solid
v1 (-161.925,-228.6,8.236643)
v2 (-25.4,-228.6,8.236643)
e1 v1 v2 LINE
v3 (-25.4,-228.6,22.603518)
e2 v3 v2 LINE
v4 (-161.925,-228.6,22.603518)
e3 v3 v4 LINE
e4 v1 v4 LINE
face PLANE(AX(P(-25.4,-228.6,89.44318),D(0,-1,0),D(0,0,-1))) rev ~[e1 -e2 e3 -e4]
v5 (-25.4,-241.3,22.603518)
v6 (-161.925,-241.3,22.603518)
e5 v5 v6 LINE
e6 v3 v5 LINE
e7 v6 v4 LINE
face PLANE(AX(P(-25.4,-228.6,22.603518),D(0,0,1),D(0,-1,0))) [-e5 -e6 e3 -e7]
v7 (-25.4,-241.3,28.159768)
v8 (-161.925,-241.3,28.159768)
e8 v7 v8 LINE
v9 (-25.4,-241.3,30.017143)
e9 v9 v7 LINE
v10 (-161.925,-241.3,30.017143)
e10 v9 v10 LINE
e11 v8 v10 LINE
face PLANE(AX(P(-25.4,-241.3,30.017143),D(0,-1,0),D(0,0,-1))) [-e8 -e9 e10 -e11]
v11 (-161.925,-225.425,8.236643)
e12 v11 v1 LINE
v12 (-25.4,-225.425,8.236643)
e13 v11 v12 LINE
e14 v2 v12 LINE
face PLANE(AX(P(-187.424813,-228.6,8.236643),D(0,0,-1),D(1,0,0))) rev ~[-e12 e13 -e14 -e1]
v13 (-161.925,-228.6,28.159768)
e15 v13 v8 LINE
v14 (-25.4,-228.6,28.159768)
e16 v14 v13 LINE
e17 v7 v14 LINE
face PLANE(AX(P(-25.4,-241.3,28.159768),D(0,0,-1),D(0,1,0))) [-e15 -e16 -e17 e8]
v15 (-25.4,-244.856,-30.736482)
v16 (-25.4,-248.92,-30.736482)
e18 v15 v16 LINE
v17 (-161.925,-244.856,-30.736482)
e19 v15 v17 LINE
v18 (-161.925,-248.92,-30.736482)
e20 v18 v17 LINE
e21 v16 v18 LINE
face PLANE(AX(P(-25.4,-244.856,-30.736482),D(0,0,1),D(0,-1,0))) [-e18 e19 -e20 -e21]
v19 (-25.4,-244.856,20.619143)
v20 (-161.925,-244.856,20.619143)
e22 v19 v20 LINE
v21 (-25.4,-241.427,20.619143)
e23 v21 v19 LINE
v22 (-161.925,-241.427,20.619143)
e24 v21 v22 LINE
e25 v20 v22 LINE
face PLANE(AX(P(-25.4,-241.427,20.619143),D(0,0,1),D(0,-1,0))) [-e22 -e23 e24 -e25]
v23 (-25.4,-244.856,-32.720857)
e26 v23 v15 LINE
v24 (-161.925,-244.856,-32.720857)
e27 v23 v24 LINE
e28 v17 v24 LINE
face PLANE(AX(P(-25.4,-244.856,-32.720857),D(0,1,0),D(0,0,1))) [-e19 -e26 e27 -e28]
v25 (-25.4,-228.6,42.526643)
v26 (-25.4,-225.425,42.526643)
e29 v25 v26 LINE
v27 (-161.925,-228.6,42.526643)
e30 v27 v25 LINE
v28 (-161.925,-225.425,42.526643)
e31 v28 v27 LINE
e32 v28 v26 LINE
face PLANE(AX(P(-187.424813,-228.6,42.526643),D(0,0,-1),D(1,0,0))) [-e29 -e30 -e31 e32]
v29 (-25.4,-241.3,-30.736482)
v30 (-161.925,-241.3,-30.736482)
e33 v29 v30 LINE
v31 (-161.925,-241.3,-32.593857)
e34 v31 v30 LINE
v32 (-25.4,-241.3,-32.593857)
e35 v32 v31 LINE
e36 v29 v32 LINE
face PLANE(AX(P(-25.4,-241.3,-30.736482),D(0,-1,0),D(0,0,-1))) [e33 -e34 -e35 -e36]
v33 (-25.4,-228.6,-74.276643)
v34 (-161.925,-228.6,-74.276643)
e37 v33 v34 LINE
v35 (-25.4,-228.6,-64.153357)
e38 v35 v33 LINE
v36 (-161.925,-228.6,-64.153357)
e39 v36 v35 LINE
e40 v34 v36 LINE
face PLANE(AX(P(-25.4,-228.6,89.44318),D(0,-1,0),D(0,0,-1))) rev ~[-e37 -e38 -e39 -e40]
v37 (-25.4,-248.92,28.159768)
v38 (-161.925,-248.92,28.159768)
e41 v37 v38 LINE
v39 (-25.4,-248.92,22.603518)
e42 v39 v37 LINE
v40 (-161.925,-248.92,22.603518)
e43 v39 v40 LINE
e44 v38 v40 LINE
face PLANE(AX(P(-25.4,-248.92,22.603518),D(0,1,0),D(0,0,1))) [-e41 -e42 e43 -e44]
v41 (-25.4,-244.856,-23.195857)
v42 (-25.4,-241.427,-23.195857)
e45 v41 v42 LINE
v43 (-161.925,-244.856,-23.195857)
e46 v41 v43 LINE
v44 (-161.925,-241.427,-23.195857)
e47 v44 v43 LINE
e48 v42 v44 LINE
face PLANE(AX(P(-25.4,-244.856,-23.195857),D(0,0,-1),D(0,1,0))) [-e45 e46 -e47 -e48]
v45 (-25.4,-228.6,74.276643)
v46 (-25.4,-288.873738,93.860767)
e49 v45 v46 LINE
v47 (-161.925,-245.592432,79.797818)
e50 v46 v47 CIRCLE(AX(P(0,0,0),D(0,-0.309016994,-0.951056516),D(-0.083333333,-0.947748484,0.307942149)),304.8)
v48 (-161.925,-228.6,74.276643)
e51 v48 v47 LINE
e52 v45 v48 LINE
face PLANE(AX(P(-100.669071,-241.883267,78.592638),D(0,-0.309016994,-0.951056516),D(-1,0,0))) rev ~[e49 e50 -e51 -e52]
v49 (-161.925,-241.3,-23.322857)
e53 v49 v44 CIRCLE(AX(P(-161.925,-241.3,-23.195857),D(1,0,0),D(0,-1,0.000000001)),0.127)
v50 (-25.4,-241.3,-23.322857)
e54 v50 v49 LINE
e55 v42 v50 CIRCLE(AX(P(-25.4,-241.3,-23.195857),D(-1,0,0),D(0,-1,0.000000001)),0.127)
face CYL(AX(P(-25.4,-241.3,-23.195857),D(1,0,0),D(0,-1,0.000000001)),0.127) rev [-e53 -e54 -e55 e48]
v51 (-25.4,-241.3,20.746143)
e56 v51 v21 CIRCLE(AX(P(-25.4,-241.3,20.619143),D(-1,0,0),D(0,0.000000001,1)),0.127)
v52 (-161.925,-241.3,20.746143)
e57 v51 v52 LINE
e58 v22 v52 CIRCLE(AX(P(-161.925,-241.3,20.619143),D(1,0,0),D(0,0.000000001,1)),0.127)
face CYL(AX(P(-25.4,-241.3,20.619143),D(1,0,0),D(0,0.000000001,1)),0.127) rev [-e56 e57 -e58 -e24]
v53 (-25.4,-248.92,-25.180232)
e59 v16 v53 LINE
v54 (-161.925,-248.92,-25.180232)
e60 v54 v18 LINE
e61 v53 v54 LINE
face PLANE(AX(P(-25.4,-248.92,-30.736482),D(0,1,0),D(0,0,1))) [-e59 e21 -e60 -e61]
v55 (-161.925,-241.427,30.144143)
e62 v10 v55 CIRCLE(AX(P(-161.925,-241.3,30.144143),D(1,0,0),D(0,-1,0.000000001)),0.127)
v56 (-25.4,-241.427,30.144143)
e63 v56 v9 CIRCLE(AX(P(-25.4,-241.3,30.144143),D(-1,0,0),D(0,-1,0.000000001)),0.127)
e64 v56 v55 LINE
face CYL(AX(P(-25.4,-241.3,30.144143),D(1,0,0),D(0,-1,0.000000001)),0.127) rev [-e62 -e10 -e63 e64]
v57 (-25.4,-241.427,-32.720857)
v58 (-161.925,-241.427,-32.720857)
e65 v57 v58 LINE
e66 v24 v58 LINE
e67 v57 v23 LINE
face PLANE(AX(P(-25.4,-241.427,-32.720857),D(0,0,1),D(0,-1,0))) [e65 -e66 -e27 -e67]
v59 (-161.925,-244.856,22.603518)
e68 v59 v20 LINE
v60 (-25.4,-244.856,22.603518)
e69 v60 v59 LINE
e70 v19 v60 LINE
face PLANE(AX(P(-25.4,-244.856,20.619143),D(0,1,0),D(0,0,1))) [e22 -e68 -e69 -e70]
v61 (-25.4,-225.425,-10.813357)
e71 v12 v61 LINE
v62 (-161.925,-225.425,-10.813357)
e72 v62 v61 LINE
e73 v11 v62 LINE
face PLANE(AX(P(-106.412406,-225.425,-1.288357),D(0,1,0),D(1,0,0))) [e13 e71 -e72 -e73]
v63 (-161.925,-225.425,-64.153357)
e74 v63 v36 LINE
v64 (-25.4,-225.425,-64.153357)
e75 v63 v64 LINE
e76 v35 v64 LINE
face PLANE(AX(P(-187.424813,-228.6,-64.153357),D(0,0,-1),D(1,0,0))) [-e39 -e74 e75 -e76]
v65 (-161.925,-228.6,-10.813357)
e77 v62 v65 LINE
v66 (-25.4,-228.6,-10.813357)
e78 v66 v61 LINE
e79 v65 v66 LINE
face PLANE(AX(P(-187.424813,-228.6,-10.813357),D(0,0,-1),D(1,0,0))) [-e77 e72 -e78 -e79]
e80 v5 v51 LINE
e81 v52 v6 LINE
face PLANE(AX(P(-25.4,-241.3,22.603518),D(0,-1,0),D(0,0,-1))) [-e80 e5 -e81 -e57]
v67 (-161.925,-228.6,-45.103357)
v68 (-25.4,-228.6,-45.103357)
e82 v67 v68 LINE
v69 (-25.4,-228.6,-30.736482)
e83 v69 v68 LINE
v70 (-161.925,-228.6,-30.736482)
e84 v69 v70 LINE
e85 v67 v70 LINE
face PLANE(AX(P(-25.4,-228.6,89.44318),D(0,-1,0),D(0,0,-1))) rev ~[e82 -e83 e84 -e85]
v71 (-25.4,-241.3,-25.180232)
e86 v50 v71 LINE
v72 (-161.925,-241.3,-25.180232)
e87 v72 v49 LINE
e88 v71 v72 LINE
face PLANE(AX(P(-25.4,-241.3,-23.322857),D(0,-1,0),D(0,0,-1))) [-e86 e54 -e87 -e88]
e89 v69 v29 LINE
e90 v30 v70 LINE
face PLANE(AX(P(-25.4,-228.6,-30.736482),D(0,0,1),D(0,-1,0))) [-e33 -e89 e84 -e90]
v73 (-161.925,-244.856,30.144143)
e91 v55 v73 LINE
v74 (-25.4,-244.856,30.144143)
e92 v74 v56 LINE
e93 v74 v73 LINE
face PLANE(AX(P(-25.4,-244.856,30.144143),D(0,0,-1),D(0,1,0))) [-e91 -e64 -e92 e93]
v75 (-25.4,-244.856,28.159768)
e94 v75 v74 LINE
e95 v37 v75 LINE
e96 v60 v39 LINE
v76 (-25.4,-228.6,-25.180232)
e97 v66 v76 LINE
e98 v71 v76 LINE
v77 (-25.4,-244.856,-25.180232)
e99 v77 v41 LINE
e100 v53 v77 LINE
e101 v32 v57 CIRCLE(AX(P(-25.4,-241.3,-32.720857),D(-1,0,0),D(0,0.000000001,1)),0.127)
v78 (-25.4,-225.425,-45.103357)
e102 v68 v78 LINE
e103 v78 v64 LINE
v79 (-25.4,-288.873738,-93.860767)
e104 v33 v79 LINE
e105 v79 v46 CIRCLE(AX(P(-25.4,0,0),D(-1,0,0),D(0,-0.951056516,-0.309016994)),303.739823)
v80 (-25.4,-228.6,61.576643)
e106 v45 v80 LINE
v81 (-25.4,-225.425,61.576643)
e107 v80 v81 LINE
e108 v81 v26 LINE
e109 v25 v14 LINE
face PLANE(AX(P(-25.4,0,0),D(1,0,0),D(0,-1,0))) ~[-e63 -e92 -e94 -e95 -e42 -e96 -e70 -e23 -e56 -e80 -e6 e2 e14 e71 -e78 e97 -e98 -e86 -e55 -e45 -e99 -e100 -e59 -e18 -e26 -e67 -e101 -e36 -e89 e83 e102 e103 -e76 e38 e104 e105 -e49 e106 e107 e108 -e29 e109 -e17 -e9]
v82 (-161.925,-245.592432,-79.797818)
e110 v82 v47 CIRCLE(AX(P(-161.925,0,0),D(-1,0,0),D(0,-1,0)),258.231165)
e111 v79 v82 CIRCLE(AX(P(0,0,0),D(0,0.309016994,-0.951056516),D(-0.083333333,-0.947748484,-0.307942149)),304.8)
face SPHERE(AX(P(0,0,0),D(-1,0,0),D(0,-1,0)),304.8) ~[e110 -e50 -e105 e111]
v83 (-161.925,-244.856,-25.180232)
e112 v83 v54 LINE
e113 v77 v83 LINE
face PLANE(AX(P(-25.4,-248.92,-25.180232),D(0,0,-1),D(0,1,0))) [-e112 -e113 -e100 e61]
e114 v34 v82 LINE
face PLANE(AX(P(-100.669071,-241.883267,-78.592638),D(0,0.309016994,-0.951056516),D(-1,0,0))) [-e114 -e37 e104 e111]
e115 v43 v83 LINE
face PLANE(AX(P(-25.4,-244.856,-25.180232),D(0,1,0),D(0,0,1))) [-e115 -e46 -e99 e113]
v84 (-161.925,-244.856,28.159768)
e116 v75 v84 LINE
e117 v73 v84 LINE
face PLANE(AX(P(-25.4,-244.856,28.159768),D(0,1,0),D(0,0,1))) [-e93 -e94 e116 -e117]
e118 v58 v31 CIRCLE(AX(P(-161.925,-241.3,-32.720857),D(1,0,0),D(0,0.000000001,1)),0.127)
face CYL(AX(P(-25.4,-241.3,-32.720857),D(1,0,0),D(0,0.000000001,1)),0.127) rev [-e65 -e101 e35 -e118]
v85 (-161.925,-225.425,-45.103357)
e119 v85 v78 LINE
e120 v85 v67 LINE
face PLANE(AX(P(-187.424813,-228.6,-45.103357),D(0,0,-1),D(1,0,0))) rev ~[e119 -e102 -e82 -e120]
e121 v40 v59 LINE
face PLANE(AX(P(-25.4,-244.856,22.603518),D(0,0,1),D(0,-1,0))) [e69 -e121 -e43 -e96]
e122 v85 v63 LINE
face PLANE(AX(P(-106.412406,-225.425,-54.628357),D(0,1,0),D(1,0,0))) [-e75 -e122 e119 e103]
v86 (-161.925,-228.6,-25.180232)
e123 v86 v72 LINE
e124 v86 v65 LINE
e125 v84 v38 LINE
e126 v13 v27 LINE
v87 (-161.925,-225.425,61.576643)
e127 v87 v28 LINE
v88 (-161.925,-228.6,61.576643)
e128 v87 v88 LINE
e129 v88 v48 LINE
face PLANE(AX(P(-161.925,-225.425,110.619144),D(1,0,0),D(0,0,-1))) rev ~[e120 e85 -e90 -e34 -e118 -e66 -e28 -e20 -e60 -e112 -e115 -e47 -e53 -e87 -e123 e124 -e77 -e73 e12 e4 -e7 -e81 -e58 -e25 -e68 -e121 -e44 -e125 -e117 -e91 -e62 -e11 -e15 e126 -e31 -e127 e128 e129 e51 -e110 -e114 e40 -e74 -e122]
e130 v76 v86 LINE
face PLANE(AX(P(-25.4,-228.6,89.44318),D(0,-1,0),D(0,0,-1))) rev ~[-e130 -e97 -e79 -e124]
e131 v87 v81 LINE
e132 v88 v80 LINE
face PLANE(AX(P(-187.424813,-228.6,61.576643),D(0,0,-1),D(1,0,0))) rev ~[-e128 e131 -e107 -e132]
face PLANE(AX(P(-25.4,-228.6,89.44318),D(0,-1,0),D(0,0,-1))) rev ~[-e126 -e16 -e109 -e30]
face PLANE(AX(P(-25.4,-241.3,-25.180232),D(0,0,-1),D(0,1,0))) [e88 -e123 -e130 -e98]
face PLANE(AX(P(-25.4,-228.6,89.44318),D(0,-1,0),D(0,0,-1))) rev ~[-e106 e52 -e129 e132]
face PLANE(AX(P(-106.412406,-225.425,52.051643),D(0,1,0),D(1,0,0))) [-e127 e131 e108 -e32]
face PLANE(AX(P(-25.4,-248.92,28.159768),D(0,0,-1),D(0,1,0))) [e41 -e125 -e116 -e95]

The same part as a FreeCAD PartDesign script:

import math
import FreeCAD as App
import Part
import Sketcher
from FreeCAD import Vector
Q = App.Units.Quantity

doc = App.newDocument("Part")
body = doc.addObject("PartDesign::Body", "Body")

sketch1 = body.newObject("Sketcher::SketchObject", "Sketch")
sketch1.AttachmentSupport = (doc.getObject("XY_Plane"), [""])
sketch1.MapMode = "FlatFace"
sketch1.addGeometry([
    Part.LineSegment(Vector(-25.4, -227.539823, 0), Vector(-202.802044, -227.539823, 0)),
    Part.ArcOfCircle(Part.Circle(Vector(0, 0, 0), Vector(0, 0, 1), 304.8), math.radians(-131.710029), math.radians(-94.780192)),
    Part.LineSegment(Vector(-25.4, -303.739823, 0), Vector(-25.4, -227.539823, 0)),
], False)
sketch1.addConstraint([
    Sketcher.Constraint("Coincident", 0, 2, 1, 1),
    Sketcher.Constraint("Coincident", 1, 2, 2, 1),
    Sketcher.Constraint("Coincident", 2, 2, 0, 1),
    Sketcher.Constraint("Horizontal", 0),
    Sketcher.Constraint("Vertical", 2),
    Sketcher.Constraint("Coincident", 1, 3, -1, 1),
    Sketcher.Constraint("Radius", 1, Q("12 in")),
    Sketcher.Constraint("DistanceY", 2, 1, 2, 2, Q("3 in")),
    Sketcher.Constraint("DistanceX", 2, 2, -1, 1, Q("1 in")),
])
revolution = body.newObject("PartDesign::Revolution", "Revolution")
revolution.Profile = sketch1
revolution.ReferenceAxis = (sketch1, ["H_Axis"])
revolution.Angle = 18
revolution.Reversed = True

sketch2 = body.newObject("Sketcher::SketchObject", "Sketch001")
sketch2.AttachmentSupport = (doc.getObject("XY_Plane"), [""])
sketch2.MapMode = "FlatFace"
sketch2.addGeometry([
    Part.LineSegment(Vector(-25.4, -227.539823, 0), Vector(-202.802044, -227.539823, 0)),
    Part.ArcOfCircle(Part.Circle(Vector(0, 0, 0), Vector(0, 0, 1), 304.8), math.radians(-131.710029), math.radians(-94.780192)),
    Part.LineSegment(Vector(-25.4, -303.739823, 0), Vector(-25.4, -227.539823, 0)),
], False)
sketch2.addConstraint([
    Sketcher.Constraint("Coincident", 0, 2, 1, 1),
    Sketcher.Constraint("Coincident", 1, 2, 2, 1),
    Sketcher.Constraint("Coincident", 2, 2, 0, 1),
    Sketcher.Constraint("Horizontal", 0),
    Sketcher.Constraint("Vertical", 2),
    Sketcher.Constraint("Coincident", 1, 3, -1, 1),
    Sketcher.Constraint("Radius", 1, Q("12 in")),
    Sketcher.Constraint("DistanceY", 2, 1, 2, 2, Q("3 in")),
    Sketcher.Constraint("DistanceX", 2, 2, -1, 1, Q("1 in")),
])
revolution2 = body.newObject("PartDesign::Revolution", "Revolution001")
revolution2.Profile = sketch2
revolution2.ReferenceAxis = (sketch2, ["H_Axis"])
revolution2.Angle = 18

sketch3 = body.newObject("Sketcher::SketchObject", "Sketch002")
sketch3.AttachmentSupport = (doc.getObject("YZ_Plane"), [""])
sketch3.MapMode = "FlatFace"
sketch3.AttachmentOffset = App.Placement(Vector(0, 0, -1 * 25.4), App.Rotation())
sketch3.addGeometry([
    Part.LineSegment(Vector(-172.228391, 89.44318, 0), Vector(-228.6, 89.44318, 0)),
    Part.LineSegment(Vector(-228.6, 89.44318, 0), Vector(-228.6, -95.80902, 0)),
    Part.LineSegment(Vector(-228.6, -95.80902, 0), Vector(-172.228391, -95.80902, 0)),
    Part.LineSegment(Vector(-172.228391, -95.80902, 0), Vector(-172.228391, 89.44318, 0)),
], False)
sketch3.addConstraint([
    Sketcher.Constraint("Coincident", 0, 2, 1, 1),
    Sketcher.Constraint("Coincident", 1, 2, 2, 1),
    Sketcher.Constraint("Coincident", 2, 2, 3, 1),
    Sketcher.Constraint("Coincident", 3, 2, 0, 1),
    Sketcher.Constraint("Horizontal", 0),
    Sketcher.Constraint("Vertical", 1),
    Sketcher.Constraint("Horizontal", 2),
    Sketcher.Constraint("Vertical", 3),
    Sketcher.Constraint("DistanceX", 0, 2, -1, 1, Q("9 in")),
    Sketcher.Constraint("DistanceY", 1, 2, 1, 1, Q("185.252199 mm")),
    Sketcher.Constraint("DistanceX", 0, 2, 0, 1, Q("56.371609 mm")),
    Sketcher.Constraint("DistanceY", -1, 1, 0, 2, Q("89.44318 mm")),
])
pocket1 = body.newObject("PartDesign::Pocket", "Pocket")
pocket1.Profile = sketch3
pocket1.Type = "ThroughAll"

sketch4 = body.newObject("Sketcher::SketchObject", "Sketch003")
sketch4.AttachmentSupport = (doc.getObject("XZ_Plane"), [""])
sketch4.MapMode = "FlatFace"
sketch4.AttachmentOffset = App.Placement(Vector(0, 0, 9 * 25.4), App.Rotation())
sketch4.addGeometry([
    Part.LineSegment(Vector(-243.079936, -74.276643, 0), Vector(-243.079936, 74.276643, 0)),
    Part.LineSegment(Vector(-243.079936, 74.276643, 0), Vector(-187.424813, 74.276643, 0)),
    Part.LineSegment(Vector(-187.424813, 74.276643, 0), Vector(-187.424813, -74.276643, 0)),
    Part.LineSegment(Vector(-187.424813, -74.276643, 0), Vector(-243.079936, -74.276643, 0)),
], False)
sketch4.addConstraint([
    Sketcher.Constraint("Coincident", 0, 2, 1, 1),
    Sketcher.Constraint("Coincident", 1, 2, 2, 1),
    Sketcher.Constraint("Coincident", 2, 2, 3, 1),
    Sketcher.Constraint("Coincident", 3, 2, 0, 1),
    Sketcher.Constraint("Vertical", 0),
    Sketcher.Constraint("Horizontal", 1),
    Sketcher.Constraint("Vertical", 2),
    Sketcher.Constraint("Horizontal", 3),
    Sketcher.Constraint("DistanceX", 1, 1, 1, 2, Q("55.655124 mm")),
    Sketcher.Constraint("DistanceY", 0, 1, 0, 2, Q("148.553285 mm")),
    Sketcher.Constraint("DistanceX", 0, 2, -1, 1, Q("243.079936 mm")),
    Sketcher.Constraint("DistanceY", -1, 1, 0, 2, Q("74.276643 mm")),
])
pocket2 = body.newObject("PartDesign::Pocket", "Pocket001")
pocket2.Profile = sketch4
pocket2.Type = "ThroughAll"
pocket2.Reversed = True

sketch5 = body.newObject("Sketcher::SketchObject", "Sketch004")
sketch5.AttachmentSupport = (doc.getObject("XZ_Plane"), [""])
sketch5.MapMode = "FlatFace"
sketch5.AttachmentOffset = App.Placement(Vector(0, 0, 9 * 25.4), App.Rotation())
sketch5.addGeometry([
    Part.LineSegment(Vector(-187.424813, 42.526643, 0), Vector(-187.424813, 61.576643, 0)),
    Part.LineSegment(Vector(-187.424813, 61.576643, 0), Vector(-25.4, 61.576643, 0)),
    Part.LineSegment(Vector(-25.4, 61.576643, 0), Vector(-25.4, 42.526643, 0)),
    Part.LineSegment(Vector(-25.4, 42.526643, 0), Vector(-187.424813, 42.526643, 0)),
], False)
sketch5.addConstraint([
    Sketcher.Constraint("Coincident", 0, 2, 1, 1),
    Sketcher.Constraint("Coincident", 1, 2, 2, 1),
    Sketcher.Constraint("Coincident", 2, 2, 3, 1),
    Sketcher.Constraint("Coincident", 3, 2, 0, 1),
    Sketcher.Constraint("Vertical", 0),
    Sketcher.Constraint("Horizontal", 1),
    Sketcher.Constraint("Vertical", 2),
    Sketcher.Constraint("Horizontal", 3),
    Sketcher.Constraint("DistanceX", 1, 2, -1, 1, Q("1 in")),
    Sketcher.Constraint("DistanceY", 0, 1, 0, 2, Q("0.75 in")),
    Sketcher.Constraint("DistanceX", 1, 1, 1, 2, Q("162.024813 mm")),
    Sketcher.Constraint("DistanceY", -1, 1, 0, 2, Q("61.576643 mm")),
])
pad1 = body.newObject("PartDesign::Pad", "Pad")
pad1.Profile = sketch5
pad1.Length = Q("0.125 in")
pad1.Reversed = True
doc.recompute()

linearpattern = body.newObject("PartDesign::LinearPattern", "LinearPattern")
linearpattern.Originals = [pad1]
linearpattern.Direction = (doc.getObject("Z_Axis"), [""])
linearpattern.Mode = "offset"
linearpattern.Offset = Q("2.1 in")
linearpattern.Occurrences = 3
linearpattern.Reversed = True
body.Tip = linearpattern

sketch6 = body.newObject("Sketcher::SketchObject", "Sketch005")
sketch6.AttachmentSupport = (doc.getObject("YZ_Plane"), [""])
sketch6.MapMode = "FlatFace"
sketch6.AttachmentOffset = App.Placement(Vector(0, 0, -1 * 25.4), App.Rotation())
sketch6.addGeometry([
    Part.LineSegment(Vector(-248.92, 22.603518, 0), Vector(-244.856, 22.603518, 0)),
    Part.LineSegment(Vector(-244.856, 22.603518, 0), Vector(-244.856, 20.619143, 0)),
    Part.LineSegment(Vector(-244.856, 20.619143, 0), Vector(-241.427, 20.619143, 0)),
    Part.ArcOfCircle(Part.Circle(Vector(-241.3, 20.619143, 0), Vector(0, 0, 1), 0.127), math.radians(180), math.radians(450)),
    Part.LineSegment(Vector(-241.3, 20.746143, 0), Vector(-241.3, 22.603518, 0)),
    Part.LineSegment(Vector(-241.3, 22.603518, 0), Vector(-228.6, 22.603518, 0)),
    Part.LineSegment(Vector(-228.6, 22.603518, 0), Vector(-228.6, 28.159768, 0)),
    Part.LineSegment(Vector(-228.6, 28.159768, 0), Vector(-241.3, 28.159768, 0)),
    Part.LineSegment(Vector(-241.3, 28.159768, 0), Vector(-241.3, 30.017143, 0)),
    Part.ArcOfCircle(Part.Circle(Vector(-241.3, 30.144143, 0), Vector(0, 0, 1), 0.127), math.radians(-90), math.radians(180)),
    Part.LineSegment(Vector(-241.427, 30.144143, 0), Vector(-244.856, 30.144143, 0)),
    Part.LineSegment(Vector(-244.856, 30.144143, 0), Vector(-244.856, 28.159768, 0)),
    Part.LineSegment(Vector(-244.856, 28.159768, 0), Vector(-248.92, 28.159768, 0)),
    Part.LineSegment(Vector(-248.92, 28.159768, 0), Vector(-248.92, 22.603518, 0)),
], False)
sketch6.addConstraint([
    Sketcher.Constraint("Coincident", 0, 2, 1, 1),
    Sketcher.Constraint("Coincident", 1, 2, 2, 1),
    Sketcher.Constraint("Coincident", 2, 2, 3, 1),
    Sketcher.Constraint("Coincident", 3, 2, 4, 1),
    Sketcher.Constraint("Coincident", 4, 2, 5, 1),
    Sketcher.Constraint("Coincident", 5, 2, 6, 1),
    Sketcher.Constraint("Coincident", 6, 2, 7, 1),
    Sketcher.Constraint("Coincident", 7, 2, 8, 1),
    Sketcher.Constraint("Coincident", 8, 2, 9, 1),
    Sketcher.Constraint("Coincident", 9, 2, 10, 1),
    Sketcher.Constraint("Coincident", 10, 2, 11, 1),
    Sketcher.Constraint("Coincident", 11, 2, 12, 1),
    Sketcher.Constraint("Coincident", 12, 2, 13, 1),
    Sketcher.Constraint("Coincident", 13, 2, 0, 1),
    Sketcher.Constraint("Horizontal", 0),
    Sketcher.Constraint("Vertical", 1),
    Sketcher.Constraint("Horizontal", 2),
    Sketcher.Constraint("Vertical", 4),
    Sketcher.Constraint("Horizontal", 5),
    Sketcher.Constraint("Vertical", 6),
    Sketcher.Constraint("Horizontal", 7),
    Sketcher.Constraint("Vertical", 8),
    Sketcher.Constraint("Horizontal", 10),
    Sketcher.Constraint("Vertical", 11),
    Sketcher.Constraint("Horizontal", 12),
    Sketcher.Constraint("Vertical", 13),
    Sketcher.Constraint("Equal", 3, 9),
    Sketcher.Constraint("Horizontal", 3, 3, 1, 2),
    Sketcher.Constraint("Horizontal", 0, 2, 4, 2),
    Sketcher.Constraint("Horizontal", 7, 2, 11, 2),
    Sketcher.Constraint("Vertical", 3, 3, 9, 3),
    Sketcher.Constraint("Vertical", 9, 3, 3, 2),
    Sketcher.Constraint("Vertical", 4, 2, 7, 2),
    Sketcher.Constraint("Vertical", 1, 2, 10, 2),
    Sketcher.Constraint("Equal", 4, 8),
    Sketcher.Constraint("Equal", 1, 11),
    Sketcher.Constraint("DistanceX", 5, 1, 5, 2, Q("0.5 in")),
    Sketcher.Constraint("DistanceX", 5, 2, -1, 1, Q("9 in")),
    Sketcher.Constraint("Radius", 3, Q("0.005 in")),
    Sketcher.Constraint("DistanceX", 0, 1, 0, 2, Q("0.16 in")),
    Sketcher.Constraint("DistanceX", 12, 2, -1, 1, Q("9.8 in")),
    Sketcher.Constraint("DistanceY", 1, 2, 1, 1, Q("0.078125 in")),
    Sketcher.Constraint("DistanceY", 6, 1, 6, 2, Q("0.21875 in")),
    Sketcher.Constraint("DistanceY", -1, 1, 3, 3, Q("20.619143 mm")),
])
pocket3 = body.newObject("PartDesign::Pocket", "Pocket002")
pocket3.Profile = sketch6
pocket3.Type = "ThroughAll"
doc.recompute()

linearpattern2 = body.newObject("PartDesign::LinearPattern", "LinearPattern001")
linearpattern2.Originals = [pocket3]
linearpattern2.Direction = (doc.getObject("Z_Axis"), [""])
linearpattern2.Mode = "offset"
linearpattern2.Offset = Q("2.1 in")
linearpattern2.Occurrences = 2
linearpattern2.Reversed = True
body.Tip = linearpattern2

sketch7 = body.newObject("Sketcher::SketchObject", "Sketch006")
sketch7.AttachmentSupport = (doc.getObject("XZ_Plane"), [""])
sketch7.MapMode = "FlatFace"
sketch7.AttachmentOffset = App.Placement(Vector(0, 0, 8.875 * 25.4), App.Rotation())
sketch7.addGeometry([
    Part.LineSegment(Vector(-215.630765, -85.384309, 0), Vector(-215.630765, 110.619144, 0)),
    Part.LineSegment(Vector(-215.630765, 110.619144, 0), Vector(-161.925, 110.619144, 0)),
    Part.LineSegment(Vector(-161.925, 110.619144, 0), Vector(-161.925, -85.384309, 0)),
    Part.LineSegment(Vector(-161.925, -85.384309, 0), Vector(-215.630765, -85.384309, 0)),
], False)
sketch7.addConstraint([
    Sketcher.Constraint("Coincident", 0, 2, 1, 1),
    Sketcher.Constraint("Coincident", 1, 2, 2, 1),
    Sketcher.Constraint("Coincident", 2, 2, 3, 1),
    Sketcher.Constraint("Coincident", 3, 2, 0, 1),
    Sketcher.Constraint("Vertical", 0),
    Sketcher.Constraint("Horizontal", 1),
    Sketcher.Constraint("Vertical", 2),
    Sketcher.Constraint("Horizontal", 3),
    Sketcher.Constraint("DistanceX", 1, 2, -1, 1, Q("6.375 in")),
    Sketcher.Constraint("DistanceX", 1, 1, 1, 2, Q("53.705765 mm")),
    Sketcher.Constraint("DistanceY", 0, 1, 0, 2, Q("196.003454 mm")),
    Sketcher.Constraint("DistanceY", 2, 2, -1, 1, Q("85.384309 mm")),
])
pocket4 = body.newObject("PartDesign::Pocket", "Pocket003")
pocket4.Profile = sketch7
pocket4.Type = "ThroughAll"
pocket4.Reversed = True

doc.recompute()
